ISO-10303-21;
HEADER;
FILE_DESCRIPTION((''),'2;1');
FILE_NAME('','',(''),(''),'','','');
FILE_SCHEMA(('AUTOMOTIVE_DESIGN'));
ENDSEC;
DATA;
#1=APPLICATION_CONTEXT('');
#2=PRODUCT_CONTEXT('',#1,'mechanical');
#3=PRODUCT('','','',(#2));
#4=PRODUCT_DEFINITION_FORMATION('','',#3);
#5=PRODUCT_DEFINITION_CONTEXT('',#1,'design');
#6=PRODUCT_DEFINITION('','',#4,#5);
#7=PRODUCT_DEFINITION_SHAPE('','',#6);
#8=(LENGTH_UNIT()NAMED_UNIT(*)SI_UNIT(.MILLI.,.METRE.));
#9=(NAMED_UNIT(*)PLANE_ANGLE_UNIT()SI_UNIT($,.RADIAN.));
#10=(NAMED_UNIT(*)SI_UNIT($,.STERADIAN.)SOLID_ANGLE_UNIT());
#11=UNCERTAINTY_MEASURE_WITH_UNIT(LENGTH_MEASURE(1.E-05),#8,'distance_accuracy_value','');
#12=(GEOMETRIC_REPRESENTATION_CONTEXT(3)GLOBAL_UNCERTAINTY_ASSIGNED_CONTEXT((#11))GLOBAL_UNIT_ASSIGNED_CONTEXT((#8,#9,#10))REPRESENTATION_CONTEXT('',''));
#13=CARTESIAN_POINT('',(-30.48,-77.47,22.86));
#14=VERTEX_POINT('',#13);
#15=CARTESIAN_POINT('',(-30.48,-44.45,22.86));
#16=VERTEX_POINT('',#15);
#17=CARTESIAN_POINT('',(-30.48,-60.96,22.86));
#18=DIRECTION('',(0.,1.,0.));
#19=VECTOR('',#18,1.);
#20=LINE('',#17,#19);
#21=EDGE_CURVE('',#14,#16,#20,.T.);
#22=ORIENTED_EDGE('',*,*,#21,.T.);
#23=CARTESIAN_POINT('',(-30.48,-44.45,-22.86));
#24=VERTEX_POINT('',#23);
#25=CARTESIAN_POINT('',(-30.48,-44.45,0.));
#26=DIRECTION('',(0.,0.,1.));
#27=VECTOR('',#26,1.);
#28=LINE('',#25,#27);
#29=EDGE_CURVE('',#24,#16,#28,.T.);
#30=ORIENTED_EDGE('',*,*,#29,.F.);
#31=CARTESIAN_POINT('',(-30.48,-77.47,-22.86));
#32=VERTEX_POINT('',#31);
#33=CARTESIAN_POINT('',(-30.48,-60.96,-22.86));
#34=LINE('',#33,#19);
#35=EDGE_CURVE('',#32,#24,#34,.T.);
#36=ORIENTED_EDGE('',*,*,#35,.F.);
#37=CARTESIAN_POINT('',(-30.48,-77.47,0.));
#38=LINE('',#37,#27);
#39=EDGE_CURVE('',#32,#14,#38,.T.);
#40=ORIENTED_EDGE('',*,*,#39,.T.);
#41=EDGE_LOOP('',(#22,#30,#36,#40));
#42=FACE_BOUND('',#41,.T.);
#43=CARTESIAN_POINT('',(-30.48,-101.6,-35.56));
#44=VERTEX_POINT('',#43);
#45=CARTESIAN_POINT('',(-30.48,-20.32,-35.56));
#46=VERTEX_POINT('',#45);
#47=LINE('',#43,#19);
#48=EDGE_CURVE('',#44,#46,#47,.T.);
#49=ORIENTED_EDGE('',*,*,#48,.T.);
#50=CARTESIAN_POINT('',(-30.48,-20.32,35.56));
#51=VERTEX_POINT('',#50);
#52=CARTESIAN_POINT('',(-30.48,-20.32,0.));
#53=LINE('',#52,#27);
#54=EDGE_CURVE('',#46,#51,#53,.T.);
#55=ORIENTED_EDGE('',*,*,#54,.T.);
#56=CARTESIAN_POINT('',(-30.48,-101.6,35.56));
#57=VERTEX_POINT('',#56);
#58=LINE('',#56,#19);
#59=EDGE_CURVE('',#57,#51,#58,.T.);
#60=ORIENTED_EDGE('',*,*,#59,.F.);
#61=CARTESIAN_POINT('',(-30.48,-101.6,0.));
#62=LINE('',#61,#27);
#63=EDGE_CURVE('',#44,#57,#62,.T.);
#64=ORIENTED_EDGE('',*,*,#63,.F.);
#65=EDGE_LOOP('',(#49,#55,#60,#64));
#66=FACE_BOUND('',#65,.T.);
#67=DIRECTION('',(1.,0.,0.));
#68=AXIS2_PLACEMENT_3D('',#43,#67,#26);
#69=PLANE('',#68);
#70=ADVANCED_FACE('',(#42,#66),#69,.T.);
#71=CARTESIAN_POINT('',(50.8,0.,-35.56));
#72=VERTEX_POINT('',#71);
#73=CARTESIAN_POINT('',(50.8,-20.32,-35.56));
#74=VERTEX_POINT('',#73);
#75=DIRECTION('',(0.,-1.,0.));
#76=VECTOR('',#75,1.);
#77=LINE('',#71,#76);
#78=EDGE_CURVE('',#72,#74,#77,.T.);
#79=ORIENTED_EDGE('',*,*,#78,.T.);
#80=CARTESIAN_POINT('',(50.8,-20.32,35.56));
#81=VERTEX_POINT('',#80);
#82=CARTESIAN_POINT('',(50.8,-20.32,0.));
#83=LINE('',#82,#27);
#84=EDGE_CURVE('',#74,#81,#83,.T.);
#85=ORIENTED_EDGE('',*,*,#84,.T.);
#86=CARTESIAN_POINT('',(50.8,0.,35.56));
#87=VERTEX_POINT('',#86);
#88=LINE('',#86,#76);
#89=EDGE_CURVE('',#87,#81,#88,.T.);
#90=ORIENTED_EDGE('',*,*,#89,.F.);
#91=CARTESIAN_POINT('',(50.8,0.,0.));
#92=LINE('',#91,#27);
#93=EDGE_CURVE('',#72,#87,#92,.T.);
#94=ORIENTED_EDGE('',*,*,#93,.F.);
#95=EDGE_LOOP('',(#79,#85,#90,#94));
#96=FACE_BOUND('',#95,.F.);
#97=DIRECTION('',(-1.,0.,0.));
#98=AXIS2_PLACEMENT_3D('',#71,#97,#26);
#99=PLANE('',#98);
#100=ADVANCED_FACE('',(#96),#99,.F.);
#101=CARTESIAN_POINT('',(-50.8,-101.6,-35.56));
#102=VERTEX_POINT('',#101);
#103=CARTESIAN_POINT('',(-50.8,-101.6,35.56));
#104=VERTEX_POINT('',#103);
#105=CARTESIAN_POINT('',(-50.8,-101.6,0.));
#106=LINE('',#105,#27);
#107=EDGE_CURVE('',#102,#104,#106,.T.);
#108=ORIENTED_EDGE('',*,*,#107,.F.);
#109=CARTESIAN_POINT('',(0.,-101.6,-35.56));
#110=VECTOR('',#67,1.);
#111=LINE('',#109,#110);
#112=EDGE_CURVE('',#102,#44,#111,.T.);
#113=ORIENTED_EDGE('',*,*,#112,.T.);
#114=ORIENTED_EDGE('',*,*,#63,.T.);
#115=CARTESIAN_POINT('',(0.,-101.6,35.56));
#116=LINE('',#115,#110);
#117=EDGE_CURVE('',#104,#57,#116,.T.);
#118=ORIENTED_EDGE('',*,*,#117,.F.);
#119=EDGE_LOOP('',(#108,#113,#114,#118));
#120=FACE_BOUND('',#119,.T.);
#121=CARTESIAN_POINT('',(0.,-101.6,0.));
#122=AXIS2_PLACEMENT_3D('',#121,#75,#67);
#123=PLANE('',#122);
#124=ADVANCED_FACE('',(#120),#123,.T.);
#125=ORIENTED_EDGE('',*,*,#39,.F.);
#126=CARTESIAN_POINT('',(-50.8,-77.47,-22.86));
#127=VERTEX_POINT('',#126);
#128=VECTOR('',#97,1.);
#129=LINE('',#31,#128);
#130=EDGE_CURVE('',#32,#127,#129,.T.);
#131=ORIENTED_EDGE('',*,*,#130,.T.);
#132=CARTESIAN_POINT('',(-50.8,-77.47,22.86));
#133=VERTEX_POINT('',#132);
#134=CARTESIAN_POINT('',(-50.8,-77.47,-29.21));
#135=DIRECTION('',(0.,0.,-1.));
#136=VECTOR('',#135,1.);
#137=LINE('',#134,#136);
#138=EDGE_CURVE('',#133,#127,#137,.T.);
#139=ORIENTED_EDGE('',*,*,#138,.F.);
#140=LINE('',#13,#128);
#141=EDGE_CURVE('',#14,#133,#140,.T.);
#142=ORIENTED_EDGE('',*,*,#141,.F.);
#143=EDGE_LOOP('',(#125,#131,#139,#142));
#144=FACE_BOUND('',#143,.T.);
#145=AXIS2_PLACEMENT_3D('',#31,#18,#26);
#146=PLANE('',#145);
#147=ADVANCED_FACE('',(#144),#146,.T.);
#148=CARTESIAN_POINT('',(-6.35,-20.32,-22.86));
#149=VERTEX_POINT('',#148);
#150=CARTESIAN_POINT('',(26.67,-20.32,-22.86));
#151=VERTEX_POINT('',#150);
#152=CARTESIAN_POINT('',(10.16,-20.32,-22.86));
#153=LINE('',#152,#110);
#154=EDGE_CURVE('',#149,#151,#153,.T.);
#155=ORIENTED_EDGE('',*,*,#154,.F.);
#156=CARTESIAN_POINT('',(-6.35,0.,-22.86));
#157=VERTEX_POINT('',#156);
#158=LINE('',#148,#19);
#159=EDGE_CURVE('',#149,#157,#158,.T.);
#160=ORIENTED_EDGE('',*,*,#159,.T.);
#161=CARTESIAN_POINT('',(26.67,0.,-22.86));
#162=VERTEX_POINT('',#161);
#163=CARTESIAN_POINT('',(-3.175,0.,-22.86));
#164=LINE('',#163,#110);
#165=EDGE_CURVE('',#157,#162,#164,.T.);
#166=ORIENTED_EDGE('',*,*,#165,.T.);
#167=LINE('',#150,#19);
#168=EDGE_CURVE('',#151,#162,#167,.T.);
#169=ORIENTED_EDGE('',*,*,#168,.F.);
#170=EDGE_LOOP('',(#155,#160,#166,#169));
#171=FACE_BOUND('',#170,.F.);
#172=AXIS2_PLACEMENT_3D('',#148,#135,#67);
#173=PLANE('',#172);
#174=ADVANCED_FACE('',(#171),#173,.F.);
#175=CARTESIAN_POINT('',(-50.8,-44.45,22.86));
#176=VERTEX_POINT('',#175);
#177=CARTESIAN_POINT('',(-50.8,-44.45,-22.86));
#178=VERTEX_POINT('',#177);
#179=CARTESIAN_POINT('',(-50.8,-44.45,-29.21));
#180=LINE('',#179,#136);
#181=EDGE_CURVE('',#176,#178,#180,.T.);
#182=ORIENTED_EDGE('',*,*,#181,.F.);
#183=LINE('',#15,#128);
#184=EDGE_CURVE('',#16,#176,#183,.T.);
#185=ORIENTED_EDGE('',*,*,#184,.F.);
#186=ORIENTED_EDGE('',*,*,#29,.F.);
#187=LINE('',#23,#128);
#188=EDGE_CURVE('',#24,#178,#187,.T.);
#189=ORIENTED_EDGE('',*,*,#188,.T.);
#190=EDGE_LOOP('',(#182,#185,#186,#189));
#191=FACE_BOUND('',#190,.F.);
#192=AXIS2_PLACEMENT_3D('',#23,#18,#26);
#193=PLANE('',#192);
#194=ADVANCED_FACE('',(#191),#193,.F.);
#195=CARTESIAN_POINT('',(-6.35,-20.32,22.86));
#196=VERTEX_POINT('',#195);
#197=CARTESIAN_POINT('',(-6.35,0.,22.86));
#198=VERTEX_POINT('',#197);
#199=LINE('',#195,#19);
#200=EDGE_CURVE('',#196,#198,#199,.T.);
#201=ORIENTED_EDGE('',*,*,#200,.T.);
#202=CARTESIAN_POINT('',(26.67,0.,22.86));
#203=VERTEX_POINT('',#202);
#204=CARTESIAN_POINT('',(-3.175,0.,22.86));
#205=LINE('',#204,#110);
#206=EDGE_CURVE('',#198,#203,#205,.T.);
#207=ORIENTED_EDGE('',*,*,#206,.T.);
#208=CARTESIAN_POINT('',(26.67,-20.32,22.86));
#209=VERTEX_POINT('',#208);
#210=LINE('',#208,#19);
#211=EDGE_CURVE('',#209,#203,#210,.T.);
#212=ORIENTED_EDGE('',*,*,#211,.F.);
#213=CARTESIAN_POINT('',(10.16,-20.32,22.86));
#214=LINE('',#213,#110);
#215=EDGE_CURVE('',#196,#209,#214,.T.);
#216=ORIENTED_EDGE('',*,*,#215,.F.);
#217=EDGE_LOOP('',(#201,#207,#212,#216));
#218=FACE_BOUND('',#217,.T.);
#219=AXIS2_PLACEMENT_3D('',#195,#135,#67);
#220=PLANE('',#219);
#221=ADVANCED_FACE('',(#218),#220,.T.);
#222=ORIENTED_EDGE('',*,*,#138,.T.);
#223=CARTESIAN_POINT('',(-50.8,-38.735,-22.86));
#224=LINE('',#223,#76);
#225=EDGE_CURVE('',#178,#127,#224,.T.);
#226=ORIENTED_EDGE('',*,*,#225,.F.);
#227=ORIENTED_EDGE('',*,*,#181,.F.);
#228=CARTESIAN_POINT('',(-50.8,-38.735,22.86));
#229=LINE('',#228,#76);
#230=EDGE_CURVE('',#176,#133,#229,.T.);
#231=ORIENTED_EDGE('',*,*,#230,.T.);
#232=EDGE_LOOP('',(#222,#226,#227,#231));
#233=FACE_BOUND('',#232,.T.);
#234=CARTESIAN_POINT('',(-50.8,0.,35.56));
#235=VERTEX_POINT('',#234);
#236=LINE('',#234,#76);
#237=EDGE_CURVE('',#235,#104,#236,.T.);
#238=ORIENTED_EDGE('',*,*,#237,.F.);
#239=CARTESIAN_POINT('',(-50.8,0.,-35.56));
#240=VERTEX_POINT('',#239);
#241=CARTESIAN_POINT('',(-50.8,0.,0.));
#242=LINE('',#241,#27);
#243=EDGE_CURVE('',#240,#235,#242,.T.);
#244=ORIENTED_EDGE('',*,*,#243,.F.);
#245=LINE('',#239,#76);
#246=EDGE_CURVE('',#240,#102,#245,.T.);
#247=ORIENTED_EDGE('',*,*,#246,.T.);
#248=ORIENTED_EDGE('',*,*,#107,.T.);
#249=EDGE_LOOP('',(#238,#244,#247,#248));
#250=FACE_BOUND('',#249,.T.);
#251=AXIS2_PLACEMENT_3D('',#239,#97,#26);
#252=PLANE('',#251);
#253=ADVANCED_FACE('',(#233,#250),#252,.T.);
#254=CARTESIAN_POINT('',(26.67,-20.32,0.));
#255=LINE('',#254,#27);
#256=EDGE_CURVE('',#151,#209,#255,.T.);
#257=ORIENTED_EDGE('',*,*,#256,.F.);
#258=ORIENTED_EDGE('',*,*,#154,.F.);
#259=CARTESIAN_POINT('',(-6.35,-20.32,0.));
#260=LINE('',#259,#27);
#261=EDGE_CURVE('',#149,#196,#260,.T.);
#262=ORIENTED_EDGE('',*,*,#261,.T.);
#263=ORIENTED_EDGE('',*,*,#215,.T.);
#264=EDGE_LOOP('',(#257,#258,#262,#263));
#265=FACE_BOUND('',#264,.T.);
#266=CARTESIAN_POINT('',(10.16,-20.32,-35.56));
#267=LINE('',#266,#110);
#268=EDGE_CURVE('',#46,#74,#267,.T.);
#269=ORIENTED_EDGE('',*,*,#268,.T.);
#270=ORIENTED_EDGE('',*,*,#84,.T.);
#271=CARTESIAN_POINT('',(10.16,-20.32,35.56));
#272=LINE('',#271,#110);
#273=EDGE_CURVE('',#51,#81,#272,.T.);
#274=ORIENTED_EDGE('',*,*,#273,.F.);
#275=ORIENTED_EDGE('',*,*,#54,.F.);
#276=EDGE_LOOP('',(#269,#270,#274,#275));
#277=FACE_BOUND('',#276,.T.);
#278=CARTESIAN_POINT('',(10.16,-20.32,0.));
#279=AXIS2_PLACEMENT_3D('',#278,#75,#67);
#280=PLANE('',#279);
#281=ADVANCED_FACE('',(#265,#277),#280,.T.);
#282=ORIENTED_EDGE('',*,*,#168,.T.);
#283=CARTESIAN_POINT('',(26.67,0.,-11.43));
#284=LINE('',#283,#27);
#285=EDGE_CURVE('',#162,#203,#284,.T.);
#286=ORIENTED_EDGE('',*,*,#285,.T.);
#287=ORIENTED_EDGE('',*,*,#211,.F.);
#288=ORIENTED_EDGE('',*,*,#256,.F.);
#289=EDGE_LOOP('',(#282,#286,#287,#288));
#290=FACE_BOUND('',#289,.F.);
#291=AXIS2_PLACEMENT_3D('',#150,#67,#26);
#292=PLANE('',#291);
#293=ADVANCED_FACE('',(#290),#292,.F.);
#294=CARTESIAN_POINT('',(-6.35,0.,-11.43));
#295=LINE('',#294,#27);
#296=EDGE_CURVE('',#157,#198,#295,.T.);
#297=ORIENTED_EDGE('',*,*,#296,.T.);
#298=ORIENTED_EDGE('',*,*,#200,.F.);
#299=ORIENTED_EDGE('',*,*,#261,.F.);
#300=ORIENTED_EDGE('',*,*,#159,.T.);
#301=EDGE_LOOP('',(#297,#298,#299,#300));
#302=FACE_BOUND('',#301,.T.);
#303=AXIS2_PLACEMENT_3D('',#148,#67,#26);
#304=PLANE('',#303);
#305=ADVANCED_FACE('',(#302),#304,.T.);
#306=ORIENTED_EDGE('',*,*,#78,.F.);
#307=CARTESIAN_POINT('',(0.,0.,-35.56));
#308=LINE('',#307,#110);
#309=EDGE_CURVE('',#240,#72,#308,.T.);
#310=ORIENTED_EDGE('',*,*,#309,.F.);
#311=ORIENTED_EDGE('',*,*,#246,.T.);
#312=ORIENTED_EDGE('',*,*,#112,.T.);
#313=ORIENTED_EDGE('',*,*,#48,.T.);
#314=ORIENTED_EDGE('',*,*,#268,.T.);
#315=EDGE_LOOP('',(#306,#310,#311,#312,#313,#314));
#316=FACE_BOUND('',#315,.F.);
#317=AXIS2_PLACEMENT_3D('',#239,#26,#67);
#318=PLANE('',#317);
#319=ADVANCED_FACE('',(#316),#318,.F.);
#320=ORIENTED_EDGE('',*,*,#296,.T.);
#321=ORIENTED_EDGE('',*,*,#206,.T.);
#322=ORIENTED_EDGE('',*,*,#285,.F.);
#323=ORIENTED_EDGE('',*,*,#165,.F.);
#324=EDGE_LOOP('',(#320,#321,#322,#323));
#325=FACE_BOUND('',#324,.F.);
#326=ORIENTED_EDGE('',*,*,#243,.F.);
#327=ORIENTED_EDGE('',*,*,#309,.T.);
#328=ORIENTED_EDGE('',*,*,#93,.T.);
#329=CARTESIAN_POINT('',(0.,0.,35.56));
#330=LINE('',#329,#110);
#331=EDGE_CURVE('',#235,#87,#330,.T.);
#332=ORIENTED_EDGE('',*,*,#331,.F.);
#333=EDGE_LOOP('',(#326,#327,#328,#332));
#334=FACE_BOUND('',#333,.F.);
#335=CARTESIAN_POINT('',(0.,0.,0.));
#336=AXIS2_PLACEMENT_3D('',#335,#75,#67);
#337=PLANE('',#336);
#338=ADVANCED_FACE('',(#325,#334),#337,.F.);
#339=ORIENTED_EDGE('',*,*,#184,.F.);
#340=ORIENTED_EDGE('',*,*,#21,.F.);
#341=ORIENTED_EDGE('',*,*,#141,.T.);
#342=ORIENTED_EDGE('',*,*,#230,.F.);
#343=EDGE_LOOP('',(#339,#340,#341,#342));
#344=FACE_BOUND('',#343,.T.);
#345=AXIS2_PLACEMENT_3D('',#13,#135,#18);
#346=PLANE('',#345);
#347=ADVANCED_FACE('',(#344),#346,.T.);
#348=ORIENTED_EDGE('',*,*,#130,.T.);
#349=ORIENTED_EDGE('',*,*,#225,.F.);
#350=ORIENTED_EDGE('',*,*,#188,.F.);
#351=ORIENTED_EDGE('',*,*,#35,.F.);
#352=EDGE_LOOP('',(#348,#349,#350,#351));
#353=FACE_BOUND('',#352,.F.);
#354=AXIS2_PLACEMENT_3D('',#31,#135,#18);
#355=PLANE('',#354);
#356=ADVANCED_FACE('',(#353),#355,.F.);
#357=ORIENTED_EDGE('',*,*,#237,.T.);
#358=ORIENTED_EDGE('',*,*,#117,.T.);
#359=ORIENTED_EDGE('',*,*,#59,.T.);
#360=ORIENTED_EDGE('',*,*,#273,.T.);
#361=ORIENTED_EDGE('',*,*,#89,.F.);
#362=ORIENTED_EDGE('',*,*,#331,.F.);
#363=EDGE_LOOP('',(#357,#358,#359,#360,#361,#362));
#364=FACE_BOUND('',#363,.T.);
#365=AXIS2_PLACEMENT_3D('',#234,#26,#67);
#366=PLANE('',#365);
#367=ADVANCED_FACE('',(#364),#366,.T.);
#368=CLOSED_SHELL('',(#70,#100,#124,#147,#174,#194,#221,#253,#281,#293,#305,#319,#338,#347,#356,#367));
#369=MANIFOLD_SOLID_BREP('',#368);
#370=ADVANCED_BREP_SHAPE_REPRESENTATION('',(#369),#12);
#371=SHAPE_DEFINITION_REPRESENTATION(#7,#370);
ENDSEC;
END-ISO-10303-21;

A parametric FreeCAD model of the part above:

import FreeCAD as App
import Part
import Sketcher
Q = App.Units.Quantity


def add_polygon(sketch, points):
    """Adds a closed chain of lines whose ends are joined by coincident constraints."""
    first, n = sketch.GeometryCount, len(points)
    for a, b in zip(points, points[1:] + points[:1]):
        sketch.addGeometry(Part.LineSegment(App.Vector(*a, 0), App.Vector(*b, 0)), False)
    for i in range(n):
        sketch.addConstraint(Sketcher.Constraint("Coincident", first + i, 2, first + (i + 1) % n, 1))

doc = App.newDocument("Part")
body = doc.addObject("PartDesign::Body", "Body")

sketch1 = body.newObject("Sketcher::SketchObject", "Sketch")
sketch1.AttachmentSupport = (doc.getObject("XZ_Plane"), [""])
sketch1.MapMode = "FlatFace"
add_polygon(sketch1, [(-51, 36), (-51, -36), (51, -36), (51, 36)])
sketch1.addConstraint([
    Sketcher.Constraint("Vertical", 0),
    Sketcher.Constraint("Horizontal", 1),
    Sketcher.Constraint("Vertical", 2),
    Sketcher.Constraint("Horizontal", 3),
    Sketcher.Constraint("Symmetric", 0, 2, 2, 2, -1, 1),
    Sketcher.Constraint("DistanceX", 1, 1, 1, 2, Q("4 in")),
    Sketcher.Constraint("DistanceY", 0, 2, 0, 1, Q("2.8 in")),
])
pad1 = body.newObject("PartDesign::Pad", "Pad")
pad1.Profile = sketch1
pad1.Length = Q("4 in")

sketch2 = body.newObject("Sketcher::SketchObject", "Sketch001")
sketch2.AttachmentSupport = (doc.getObject("XZ_Plane"), [""])
sketch2.MapMode = "FlatFace"
sketch2.AttachmentOffset = App.Placement(App.Vector(0, 0, 4 * 25.4), App.Rotation())
add_polygon(sketch2, [(-30, 36), (-30, -36), (51, -36), (51, 36)])
sketch2.addConstraint([
    Sketcher.Constraint("Vertical", 0),
    Sketcher.Constraint("Horizontal", 1),
    Sketcher.Constraint("Vertical", 2),
    Sketcher.Constraint("Horizontal", 3),
    Sketcher.Constraint("DistanceX", 1, 1, 1, 2, Q("3.2 in")),
    Sketcher.Constraint("DistanceY", 0, 2, 0, 1, Q("2.8 in")),
    Sketcher.Constraint("DistanceX", -1, 1, 1, 2, Q("2 in")),
    Sketcher.Constraint("DistanceY", 0, 2, -1, 1, Q("1.4 in")),
])
pocket1 = body.newObject("PartDesign::Pocket", "Pocket")
pocket1.Profile = sketch2
pocket1.Length = Q("3.2 in")

sketch3 = body.newObject("Sketcher::SketchObject", "Sketch002")
sketch3.AttachmentSupport = (doc.getObject("XZ_Plane"), [""])
sketch3.MapMode = "FlatFace"
sketch3.AttachmentOffset = App.Placement(App.Vector(0, 0, 0.8 * 25.4), App.Rotation())
add_polygon(sketch3, [(-6, 23), (-6, -23), (27, -23), (27, 23)])
sketch3.addConstraint([
    Sketcher.Constraint("Vertical", 0),
    Sketcher.Constraint("Horizontal", 1),
    Sketcher.Constraint("Vertical", 2),
    Sketcher.Constraint("Horizontal", 3),
    Sketcher.Constraint("DistanceX", 1, 1, 1, 2, Q("1.3 in")),
    Sketcher.Constraint("DistanceY", 0, 2, 0, 1, Q("1.8 in")),
    Sketcher.Constraint("DistanceY", 0, 2, -1, 1, Q("0.9 in")),
    Sketcher.Constraint("DistanceX", 0, 2, -1, 1, Q("0.25 in")),
])
pocket2 = body.newObject("PartDesign::Pocket", "Pocket001")
pocket2.Profile = sketch3
pocket2.Type = "ThroughAll"

sketch4 = body.newObject("Sketcher::SketchObject", "Sketch003")
sketch4.AttachmentSupport = (doc.getObject("YZ_Plane"), [""])
sketch4.MapMode = "FlatFace"
sketch4.AttachmentOffset = App.Placement(App.Vector(0, 0, -1.2 * 25.4), App.Rotation())
add_polygon(sketch4, [(-77, 23), (-77, -23), (-44, -23), (-44, 23)])
sketch4.addConstraint([
    Sketcher.Constraint("Vertical", 0),
    Sketcher.Constraint("Horizontal", 1),
    Sketcher.Constraint("Vertical", 2),
    Sketcher.Constraint("Horizontal", 3),
    Sketcher.Constraint("DistanceX", 1, 1, 1, 2, Q("1.3 in")),
    Sketcher.Constraint("DistanceY", 0, 2, 0, 1, Q("1.8 in")),
    Sketcher.Constraint("DistanceY", 0, 2, -1, 1, Q("0.9 in")),
    Sketcher.Constraint("DistanceX", 0, 2, -1, 1, Q("3.05 in")),
])
pocket3 = body.newObject("PartDesign::Pocket", "Pocket002")
pocket3.Profile = sketch4
pocket3.Type = "ThroughAll"

doc.recompute()
